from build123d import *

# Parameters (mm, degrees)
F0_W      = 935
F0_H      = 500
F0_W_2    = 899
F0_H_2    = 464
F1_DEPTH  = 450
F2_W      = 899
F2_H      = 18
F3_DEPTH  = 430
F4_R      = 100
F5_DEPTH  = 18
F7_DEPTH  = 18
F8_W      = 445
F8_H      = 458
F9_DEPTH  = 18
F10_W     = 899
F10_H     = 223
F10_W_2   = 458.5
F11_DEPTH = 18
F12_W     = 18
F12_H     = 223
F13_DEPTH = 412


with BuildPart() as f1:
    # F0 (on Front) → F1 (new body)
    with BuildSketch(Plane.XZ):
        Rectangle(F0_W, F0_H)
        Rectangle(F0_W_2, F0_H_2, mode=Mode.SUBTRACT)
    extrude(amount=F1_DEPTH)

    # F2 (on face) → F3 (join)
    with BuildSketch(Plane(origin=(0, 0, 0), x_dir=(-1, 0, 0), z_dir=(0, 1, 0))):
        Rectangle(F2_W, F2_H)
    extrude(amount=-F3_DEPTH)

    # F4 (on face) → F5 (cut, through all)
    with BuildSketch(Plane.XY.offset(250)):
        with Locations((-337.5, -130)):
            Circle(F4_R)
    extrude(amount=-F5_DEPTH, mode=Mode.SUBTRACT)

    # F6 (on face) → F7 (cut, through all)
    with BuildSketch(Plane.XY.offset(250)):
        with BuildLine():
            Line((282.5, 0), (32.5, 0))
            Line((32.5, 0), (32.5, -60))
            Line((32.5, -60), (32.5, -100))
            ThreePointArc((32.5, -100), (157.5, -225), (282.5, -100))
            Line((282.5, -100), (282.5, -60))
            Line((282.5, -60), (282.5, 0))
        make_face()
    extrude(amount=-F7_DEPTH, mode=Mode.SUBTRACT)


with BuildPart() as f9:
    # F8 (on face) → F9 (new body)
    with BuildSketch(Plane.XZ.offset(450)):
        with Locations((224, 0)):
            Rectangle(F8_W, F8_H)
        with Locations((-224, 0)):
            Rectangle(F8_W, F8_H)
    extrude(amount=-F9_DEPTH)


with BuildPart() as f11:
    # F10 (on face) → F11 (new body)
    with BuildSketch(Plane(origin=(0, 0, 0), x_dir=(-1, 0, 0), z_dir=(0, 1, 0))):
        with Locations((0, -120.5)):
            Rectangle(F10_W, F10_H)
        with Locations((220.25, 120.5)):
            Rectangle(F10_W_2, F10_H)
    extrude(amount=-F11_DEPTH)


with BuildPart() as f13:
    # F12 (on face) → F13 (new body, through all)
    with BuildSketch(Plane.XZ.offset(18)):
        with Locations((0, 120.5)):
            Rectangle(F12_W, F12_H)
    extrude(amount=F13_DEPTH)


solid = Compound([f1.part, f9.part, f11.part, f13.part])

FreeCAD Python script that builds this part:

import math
import FreeCAD as App
import Part
import Sketcher

V = App.Vector
Q = App.Units.Quantity

doc = App.newDocument("Part")
params = doc.addObject("Spreadsheet::Sheet", "Params")
for row, (alias, value) in enumerate([
    ("sketch1_width", "935 mm"),
    ("sketch1_width2", "899 mm"),
    ("sketch1_height", "500 mm"),
    ("sketch1_height2", "464 mm"),
    ("pad1_length", "450 mm"),
    ("sketch2_width", "899 mm"),
    ("sketch2_height", "18 mm"),
    ("pad2_length", "430 mm"),
    ("sketch3_diameter", "200 mm"),
    ("pocket1_length", "18 mm"),
    ("sketch4_radius", "125 mm"),
    ("sketch4_height", "100 mm"),
    ("pocket2_length", "18 mm"),
    ("sketch5_width", "445 mm"),
    ("sketch5_height", "458 mm"),
    ("pad3_length", "18 mm"),
    ("sketch6_width", "899 mm"),
    ("sketch6_height", "223 mm"),
    ("sketch6_width2", "458.5 mm"),
    ("pad4_length", "18 mm"),
    ("sketch7_width", "18 mm"),
    ("sketch7_height", "223 mm"),
    ("pad5_length", "412 mm"),
], start=1):
    params.set(f"A{row}", alias)
    params.set(f"B{row}", "=" + value)
    params.setAlias(f"B{row}", alias)

body = doc.addObject("PartDesign::Body", "Body")

sketch1 = body.newObject("Sketcher::SketchObject", "Sketch")
sketch1.AttachmentSupport = (doc.getObject("XZ_Plane"), [""])
sketch1.MapMode = "FlatFace"
sketch1.addGeometry(Part.LineSegment(V(-467.5, 250, 0), V(-467.5, -250, 0)), False)
sketch1.addGeometry(Part.LineSegment(V(-467.5, -250, 0), V(467.5, -250, 0)), False)
sketch1.addGeometry(Part.LineSegment(V(467.5, -250, 0), V(467.5, 250, 0)), False)
sketch1.addGeometry(Part.LineSegment(V(467.5, 250, 0), V(-467.5, 250, 0)), False)
sketch1.addGeometry(Part.LineSegment(V(449.5, -232, 0), V(-449.5, -232, 0)), False)
sketch1.addGeometry(Part.LineSegment(V(-449.5, -232, 0), V(-449.5, 232, 0)), False)
sketch1.addGeometry(Part.LineSegment(V(-449.5, 232, 0), V(449.5, 232, 0)), False)
sketch1.addGeometry(Part.LineSegment(V(449.5, 232, 0), V(449.5, -232, 0)), False)
sketch1.addConstraint(Sketcher.Constraint("Coincident", 0, 2, 1, 1))
sketch1.addConstraint(Sketcher.Constraint("Coincident", 1, 2, 2, 1))
sketch1.addConstraint(Sketcher.Constraint("Coincident", 2, 2, 3, 1))
sketch1.addConstraint(Sketcher.Constraint("Coincident", 3, 2, 0, 1))
sketch1.addConstraint(Sketcher.Constraint("Coincident", 4, 2, 5, 1))
sketch1.addConstraint(Sketcher.Constraint("Coincident", 5, 2, 6, 1))
sketch1.addConstraint(Sketcher.Constraint("Coincident", 6, 2, 7, 1))
sketch1.addConstraint(Sketcher.Constraint("Coincident", 7, 2, 4, 1))
sketch1.addConstraint(Sketcher.Constraint("Vertical", 0))
sketch1.addConstraint(Sketcher.Constraint("Horizontal", 1))
sketch1.addConstraint(Sketcher.Constraint("Vertical", 2))
sketch1.addConstraint(Sketcher.Constraint("Horizontal", 3))
sketch1.addConstraint(Sketcher.Constraint("Horizontal", 4))
sketch1.addConstraint(Sketcher.Constraint("Vertical", 5))
sketch1.addConstraint(Sketcher.Constraint("Horizontal", 6))
sketch1.addConstraint(Sketcher.Constraint("Vertical", 7))
sketch1.addConstraint(Sketcher.Constraint("Symmetric", 0, 2, 2, 2, -1, 1))
sketch1.addConstraint(Sketcher.Constraint("Symmetric", 4, 2, 6, 2, -1, 1))
sketch1.addConstraint(Sketcher.Constraint("DistanceX", 1, 1, 1, 2, Q("935 mm")))
sketch1.addConstraint(Sketcher.Constraint("DistanceX", 4, 2, 4, 1, Q("899 mm")))
sketch1.addConstraint(Sketcher.Constraint("DistanceY", 0, 2, 0, 1, Q("500 mm")))
sketch1.addConstraint(Sketcher.Constraint("DistanceY", 5, 1, 5, 2, Q("464 mm")))
sketch1.setExpression("Constraints[18]", "Params.sketch1_width")
sketch1.setExpression("Constraints[19]", "Params.sketch1_width2")
sketch1.setExpression("Constraints[20]", "Params.sketch1_height")
sketch1.setExpression("Constraints[21]", "Params.sketch1_height2")
pad1 = body.newObject("PartDesign::Pad", "Pad")
pad1.Profile = sketch1
pad1.setExpression("Length", "Params.pad1_length")

sketch2 = body.newObject("Sketcher::SketchObject", "Sketch001")
sketch2.AttachmentSupport = (doc.getObject("XZ_Plane"), [""])
sketch2.MapMode = "FlatFace"
sketch2.addGeometry(Part.LineSegment(V(449.5, 9, 0), V(449.5, -9, 0)), False)
sketch2.addGeometry(Part.LineSegment(V(449.5, -9, 0), V(-449.5, -9, 0)), False)
sketch2.addGeometry(Part.LineSegment(V(-449.5, -9, 0), V(-449.5, 9, 0)), False)
sketch2.addGeometry(Part.LineSegment(V(-449.5, 9, 0), V(449.5, 9, 0)), False)
sketch2.addConstraint(Sketcher.Constraint("Coincident", 0, 2, 1, 1))
sketch2.addConstraint(Sketcher.Constraint("Coincident", 1, 2, 2, 1))
sketch2.addConstraint(Sketcher.Constraint("Coincident", 2, 2, 3, 1))
sketch2.addConstraint(Sketcher.Constraint("Coincident", 3, 2, 0, 1))
sketch2.addConstraint(Sketcher.Constraint("Vertical", 0))
sketch2.addConstraint(Sketcher.Constraint("Horizontal", 1))
sketch2.addConstraint(Sketcher.Constraint("Vertical", 2))
sketch2.addConstraint(Sketcher.Constraint("Horizontal", 3))
sketch2.addConstraint(Sketcher.Constraint("Symmetric", 0, 2, 2, 2, -1, 1))
sketch2.addConstraint(Sketcher.Constraint("DistanceX", 1, 2, 1, 1, Q("899 mm")))
sketch2.addConstraint(Sketcher.Constraint("DistanceY", 0, 2, 0, 1, Q("18 mm")))
sketch2.setExpression("Constraints[9]", "Params.sketch2_width")
sketch2.setExpression("Constraints[10]", "Params.sketch2_height")
pad2 = body.newObject("PartDesign::Pad", "Pad001")
pad2.Profile = sketch2
pad2.setExpression("Length", "Params.pad2_length")

sketch3 = body.newObject("Sketcher::SketchObject", "Sketch002")
sketch3.AttachmentSupport = (doc.getObject("XY_Plane"), [""])
sketch3.MapMode = "FlatFace"
sketch3.AttachmentOffset = App.Placement(V(0, 0, 250), App.Rotation())
sketch3.addGeometry(Part.Circle(V(-337.5, -130, 0), V(0, 0, 1), 100), False)
sketch3.addConstraint(Sketcher.Constraint("Diameter", 0, Q("200 mm")))
sketch3.addConstraint(Sketcher.Constraint("DistanceY", 0, 3, -1, 1, Q("130 mm")))
sketch3.addConstraint(Sketcher.Constraint("DistanceX", 0, 3, -1, 1, Q("337.5 mm")))
sketch3.setExpression("Constraints[0]", "Params.sketch3_diameter")
pocket1 = body.newObject("PartDesign::Pocket", "Pocket")
pocket1.Profile = sketch3
pocket1.setExpression("Length", "Params.pocket1_length")

sketch4 = body.newObject("Sketcher::SketchObject", "Sketch003")
sketch4.AttachmentSupport = (doc.getObject("XY_Plane"), [""])
sketch4.MapMode = "FlatFace"
sketch4.AttachmentOffset = App.Placement(V(0, 0, 250), App.Rotation())
sketch4.addGeometry(Part.LineSegment(V(282.5, 0, 0), V(32.5, 0, 0)), False)
sketch4.addGeometry(Part.LineSegment(V(32.5, 0, 0), V(32.5, -100, 0)), False)
sketch4.addGeometry(Part.ArcOfCircle(Part.Circle(V(157.5, -100, 0), V(0, 0, 1), 125), math.radians(180), math.radians(360)), False)
sketch4.addGeometry(Part.LineSegment(V(282.5, -100, 0), V(282.5, 0, 0)), False)
sketch4.addConstraint(Sketcher.Constraint("Coincident", 0, 2, 1, 1))
sketch4.addConstraint(Sketcher.Constraint("Tangent", 1, 2, 2, 1))
sketch4.addConstraint(Sketcher.Constraint("Tangent", 2, 2, 3, 1))
sketch4.addConstraint(Sketcher.Constraint("Coincident", 3, 2, 0, 1))
sketch4.addConstraint(Sketcher.Constraint("Horizontal", 0))
sketch4.addConstraint(Sketcher.Constraint("Vertical", 1))
sketch4.addConstraint(Sketcher.Constraint("Vertical", 3))
sketch4.addConstraint(Sketcher.Constraint("PointOnObject", 0, 2, -1))
sketch4.addConstraint(Sketcher.Constraint("Radius", 2, Q("125 mm")))
sketch4.addConstraint(Sketcher.Constraint("DistanceY", 1, 2, 1, 1, Q("100 mm")))
sketch4.addConstraint(Sketcher.Constraint("DistanceX", -1, 1, 2, 3, Q("157.5 mm")))
sketch4.setExpression("Constraints[8]", "Params.sketch4_radius")
sketch4.setExpression("Constraints[9]", "Params.sketch4_height")
pocket2 = body.newObject("PartDesign::Pocket", "Pocket001")
pocket2.Profile = sketch4
pocket2.setExpression("Length", "Params.pocket2_length")
body2 = doc.addObject("PartDesign::Body", "Body001")
body2.AllowCompound = True

sketch5 = body2.newObject("Sketcher::SketchObject", "Sketch004")
sketch5.AttachmentSupport = (doc.getObject("XZ_Plane001"), [""])
sketch5.MapMode = "FlatFace"
sketch5.AttachmentOffset = App.Placement(V(0, 0, 450), App.Rotation())
sketch5.addGeometry(Part.LineSegment(V(1.5, 229, 0), V(1.5, -229, 0)), False)
sketch5.addGeometry(Part.LineSegment(V(1.5, -229, 0), V(446.5, -229, 0)), False)
sketch5.addGeometry(Part.LineSegment(V(446.5, -229, 0), V(446.5, 229, 0)), False)
sketch5.addGeometry(Part.LineSegment(V(446.5, 229, 0), V(1.5, 229, 0)), False)
sketch5.addGeometry(Part.LineSegment(V(-446.5, 229, 0), V(-446.5, -229, 0)), False)
sketch5.addGeometry(Part.LineSegment(V(-446.5, -229, 0), V(-1.5, -229, 0)), False)
sketch5.addGeometry(Part.LineSegment(V(-1.5, -229, 0), V(-1.5, 229, 0)), False)
sketch5.addGeometry(Part.LineSegment(V(-1.5, 229, 0), V(-446.5, 229, 0)), False)
sketch5.addConstraint(Sketcher.Constraint("Coincident", 0, 2, 1, 1))
sketch5.addConstraint(Sketcher.Constraint("Coincident", 1, 2, 2, 1))
sketch5.addConstraint(Sketcher.Constraint("Coincident", 2, 2, 3, 1))
sketch5.addConstraint(Sketcher.Constraint("Coincident", 3, 2, 0, 1))
sketch5.addConstraint(Sketcher.Constraint("Coincident", 4, 2, 5, 1))
sketch5.addConstraint(Sketcher.Constraint("Coincident", 5, 2, 6, 1))
sketch5.addConstraint(Sketcher.Constraint("Coincident", 6, 2, 7, 1))
sketch5.addConstraint(Sketcher.Constraint("Coincident", 7, 2, 4, 1))
sketch5.addConstraint(Sketcher.Constraint("Vertical", 0))
sketch5.addConstraint(Sketcher.Constraint("Horizontal", 1))
sketch5.addConstraint(Sketcher.Constraint("Vertical", 2))
sketch5.addConstraint(Sketcher.Constraint("Horizontal", 3))
sketch5.addConstraint(Sketcher.Constraint("Vertical", 4))
sketch5.addConstraint(Sketcher.Constraint("Horizontal", 5))
sketch5.addConstraint(Sketcher.Constraint("Vertical", 6))
sketch5.addConstraint(Sketcher.Constraint("Horizontal", 7))
sketch5.addConstraint(Sketcher.Constraint("Symmetric", 2, 2, 4, 2, -1, 1))
sketch5.addConstraint(Sketcher.Constraint("Symmetric", 0, 2, 6, 2, -1, 1))
sketch5.addConstraint(Sketcher.Constraint("Horizontal", 1, 2, 4, 2))
sketch5.addConstraint(Sketcher.Constraint("DistanceX", 1, 1, 1, 2, Q("445 mm")))
sketch5.addConstraint(Sketcher.Constraint("DistanceY", 0, 2, 0, 1, Q("458 mm")))
sketch5.addConstraint(Sketcher.Constraint("DistanceX", 4, 2, 0, 2, Q("448 mm")))
sketch5.setExpression("Constraints[19]", "Params.sketch5_width")
sketch5.setExpression("Constraints[20]", "Params.sketch5_height")
pad3 = body2.newObject("PartDesign::Pad", "Pad002")
pad3.Profile = sketch5
pad3.setExpression("Length", "Params.pad3_length")
pad3.Reversed = True
body3 = doc.addObject("PartDesign::Body", "Body002")
body3.AllowCompound = True

sketch6 = body3.newObject("Sketcher::SketchObject", "Sketch005")
sketch6.AttachmentSupport = (doc.getObject("XZ_Plane002"), [""])
sketch6.MapMode = "FlatFace"
sketch6.addGeometry(Part.LineSegment(V(449.5, -9, 0), V(449.5, -232, 0)), False)
sketch6.addGeometry(Part.LineSegment(V(449.5, -232, 0), V(-449.5, -232, 0)), False)
sketch6.addGeometry(Part.LineSegment(V(-449.5, -232, 0), V(-449.5, -9, 0)), False)
sketch6.addGeometry(Part.LineSegment(V(-449.5, -9, 0), V(449.5, -9, 0)), False)
sketch6.addGeometry(Part.LineSegment(V(9, 232, 0), V(9, 9, 0)), False)
sketch6.addGeometry(Part.LineSegment(V(9, 9, 0), V(-449.5, 9, 0)), False)
sketch6.addGeometry(Part.LineSegment(V(-449.5, 9, 0), V(-449.5, 232, 0)), False)
sketch6.addGeometry(Part.LineSegment(V(-449.5, 232, 0), V(9, 232, 0)), False)
sketch6.addConstraint(Sketcher.Constraint("Coincident", 0, 2, 1, 1))
sketch6.addConstraint(Sketcher.Constraint("Coincident", 1, 2, 2, 1))
sketch6.addConstraint(Sketcher.Constraint("Coincident", 2, 2, 3, 1))
sketch6.addConstraint(Sketcher.Constraint("Coincident", 3, 2, 0, 1))
sketch6.addConstraint(Sketcher.Constraint("Coincident", 4, 2, 5, 1))
sketch6.addConstraint(Sketcher.Constraint("Coincident", 5, 2, 6, 1))
sketch6.addConstraint(Sketcher.Constraint("Coincident", 6, 2, 7, 1))
sketch6.addConstraint(Sketcher.Constraint("Coincident", 7, 2, 4, 1))
sketch6.addConstraint(Sketcher.Constraint("Vertical", 0))
sketch6.addConstraint(Sketcher.Constraint("Horizontal", 1))
sketch6.addConstraint(Sketcher.Constraint("Vertical", 2))
sketch6.addConstraint(Sketcher.Constraint("Horizontal", 3))
sketch6.addConstraint(Sketcher.Constraint("Vertical", 4))
sketch6.addConstraint(Sketcher.Constraint("Horizontal", 5))
sketch6.addConstraint(Sketcher.Constraint("Vertical", 6))
sketch6.addConstraint(Sketcher.Constraint("Horizontal", 7))
sketch6.addConstraint(Sketcher.Constraint("Symmetric", 3, 2, 5, 2, -1, 1))
sketch6.addConstraint(Sketcher.Constraint("Symmetric", 1, 2, 6, 2, -1))
sketch6.addConstraint(Sketcher.Constraint("DistanceX", 1, 2, 1, 1, Q("899 mm")))
sketch6.addConstraint(Sketcher.Constraint("DistanceY", 0, 2, 0, 1, Q("223 mm")))
sketch6.addConstraint(Sketcher.Constraint("DistanceX", 5, 2, 5, 1, Q("458.5 mm")))
sketch6.addConstraint(Sketcher.Constraint("DistanceY", 0, 2, -1, 1, Q("232 mm")))
sketch6.setExpression("Constraints[18]", "Params.sketch6_width")
sketch6.setExpression("Constraints[19]", "Params.sketch6_height")
sketch6.setExpression("Constraints[20]", "Params.sketch6_width2")
pad4 = body3.newObject("PartDesign::Pad", "Pad003")
pad4.Profile = sketch6
pad4.setExpression("Length", "Params.pad4_length")
body4 = doc.addObject("PartDesign::Body", "Body003")

sketch7 = body4.newObject("Sketcher::SketchObject", "Sketch006")
sketch7.AttachmentSupport = (doc.getObject("XZ_Plane003"), [""])
sketch7.MapMode = "FlatFace"
sketch7.AttachmentOffset = App.Placement(V(0, 0, 18), App.Rotation())
sketch7.addGeometry(Part.LineSegment(V(-9, 232, 0), V(-9, 9, 0)), False)
sketch7.addGeometry(Part.LineSegment(V(-9, 9, 0), V(9, 9, 0)), False)
sketch7.addGeometry(Part.LineSegment(V(9, 9, 0), V(9, 232, 0)), False)
sketch7.addGeometry(Part.LineSegment(V(9, 232, 0), V(-9, 232, 0)), False)
sketch7.addConstraint(Sketcher.Constraint("Coincident", 0, 2, 1, 1))
sketch7.addConstraint(Sketcher.Constraint("Coincident", 1, 2, 2, 1))
sketch7.addConstraint(Sketcher.Constraint("Coincident", 2, 2, 3, 1))
sketch7.addConstraint(Sketcher.Constraint("Coincident", 3, 2, 0, 1))
sketch7.addConstraint(Sketcher.Constraint("Vertical", 0))
sketch7.addConstraint(Sketcher.Constraint("Horizontal", 1))
sketch7.addConstraint(Sketcher.Constraint("Vertical", 2))
sketch7.addConstraint(Sketcher.Constraint("Horizontal", 3))
sketch7.addConstraint(Sketcher.Constraint("DistanceX", 1, 1, 1, 2, Q("18 mm")))
sketch7.addConstraint(Sketcher.Constraint("DistanceY", 0, 2, 0, 1, Q("223 mm")))
sketch7.addConstraint(Sketcher.Constraint("DistanceX", 0, 2, -1, 1, Q("9 mm")))
sketch7.addConstraint(Sketcher.Constraint("DistanceY", -1, 1, 0, 2, Q("9 mm")))
sketch7.setExpression("Constraints[8]", "Params.sketch7_width")
sketch7.setExpression("Constraints[9]", "Params.sketch7_height")
pad5 = body4.newObject("PartDesign::Pad", "Pad004")
pad5.Profile = sketch7
pad5.setExpression("Length", "Params.pad5_length")

doc.recompute()
